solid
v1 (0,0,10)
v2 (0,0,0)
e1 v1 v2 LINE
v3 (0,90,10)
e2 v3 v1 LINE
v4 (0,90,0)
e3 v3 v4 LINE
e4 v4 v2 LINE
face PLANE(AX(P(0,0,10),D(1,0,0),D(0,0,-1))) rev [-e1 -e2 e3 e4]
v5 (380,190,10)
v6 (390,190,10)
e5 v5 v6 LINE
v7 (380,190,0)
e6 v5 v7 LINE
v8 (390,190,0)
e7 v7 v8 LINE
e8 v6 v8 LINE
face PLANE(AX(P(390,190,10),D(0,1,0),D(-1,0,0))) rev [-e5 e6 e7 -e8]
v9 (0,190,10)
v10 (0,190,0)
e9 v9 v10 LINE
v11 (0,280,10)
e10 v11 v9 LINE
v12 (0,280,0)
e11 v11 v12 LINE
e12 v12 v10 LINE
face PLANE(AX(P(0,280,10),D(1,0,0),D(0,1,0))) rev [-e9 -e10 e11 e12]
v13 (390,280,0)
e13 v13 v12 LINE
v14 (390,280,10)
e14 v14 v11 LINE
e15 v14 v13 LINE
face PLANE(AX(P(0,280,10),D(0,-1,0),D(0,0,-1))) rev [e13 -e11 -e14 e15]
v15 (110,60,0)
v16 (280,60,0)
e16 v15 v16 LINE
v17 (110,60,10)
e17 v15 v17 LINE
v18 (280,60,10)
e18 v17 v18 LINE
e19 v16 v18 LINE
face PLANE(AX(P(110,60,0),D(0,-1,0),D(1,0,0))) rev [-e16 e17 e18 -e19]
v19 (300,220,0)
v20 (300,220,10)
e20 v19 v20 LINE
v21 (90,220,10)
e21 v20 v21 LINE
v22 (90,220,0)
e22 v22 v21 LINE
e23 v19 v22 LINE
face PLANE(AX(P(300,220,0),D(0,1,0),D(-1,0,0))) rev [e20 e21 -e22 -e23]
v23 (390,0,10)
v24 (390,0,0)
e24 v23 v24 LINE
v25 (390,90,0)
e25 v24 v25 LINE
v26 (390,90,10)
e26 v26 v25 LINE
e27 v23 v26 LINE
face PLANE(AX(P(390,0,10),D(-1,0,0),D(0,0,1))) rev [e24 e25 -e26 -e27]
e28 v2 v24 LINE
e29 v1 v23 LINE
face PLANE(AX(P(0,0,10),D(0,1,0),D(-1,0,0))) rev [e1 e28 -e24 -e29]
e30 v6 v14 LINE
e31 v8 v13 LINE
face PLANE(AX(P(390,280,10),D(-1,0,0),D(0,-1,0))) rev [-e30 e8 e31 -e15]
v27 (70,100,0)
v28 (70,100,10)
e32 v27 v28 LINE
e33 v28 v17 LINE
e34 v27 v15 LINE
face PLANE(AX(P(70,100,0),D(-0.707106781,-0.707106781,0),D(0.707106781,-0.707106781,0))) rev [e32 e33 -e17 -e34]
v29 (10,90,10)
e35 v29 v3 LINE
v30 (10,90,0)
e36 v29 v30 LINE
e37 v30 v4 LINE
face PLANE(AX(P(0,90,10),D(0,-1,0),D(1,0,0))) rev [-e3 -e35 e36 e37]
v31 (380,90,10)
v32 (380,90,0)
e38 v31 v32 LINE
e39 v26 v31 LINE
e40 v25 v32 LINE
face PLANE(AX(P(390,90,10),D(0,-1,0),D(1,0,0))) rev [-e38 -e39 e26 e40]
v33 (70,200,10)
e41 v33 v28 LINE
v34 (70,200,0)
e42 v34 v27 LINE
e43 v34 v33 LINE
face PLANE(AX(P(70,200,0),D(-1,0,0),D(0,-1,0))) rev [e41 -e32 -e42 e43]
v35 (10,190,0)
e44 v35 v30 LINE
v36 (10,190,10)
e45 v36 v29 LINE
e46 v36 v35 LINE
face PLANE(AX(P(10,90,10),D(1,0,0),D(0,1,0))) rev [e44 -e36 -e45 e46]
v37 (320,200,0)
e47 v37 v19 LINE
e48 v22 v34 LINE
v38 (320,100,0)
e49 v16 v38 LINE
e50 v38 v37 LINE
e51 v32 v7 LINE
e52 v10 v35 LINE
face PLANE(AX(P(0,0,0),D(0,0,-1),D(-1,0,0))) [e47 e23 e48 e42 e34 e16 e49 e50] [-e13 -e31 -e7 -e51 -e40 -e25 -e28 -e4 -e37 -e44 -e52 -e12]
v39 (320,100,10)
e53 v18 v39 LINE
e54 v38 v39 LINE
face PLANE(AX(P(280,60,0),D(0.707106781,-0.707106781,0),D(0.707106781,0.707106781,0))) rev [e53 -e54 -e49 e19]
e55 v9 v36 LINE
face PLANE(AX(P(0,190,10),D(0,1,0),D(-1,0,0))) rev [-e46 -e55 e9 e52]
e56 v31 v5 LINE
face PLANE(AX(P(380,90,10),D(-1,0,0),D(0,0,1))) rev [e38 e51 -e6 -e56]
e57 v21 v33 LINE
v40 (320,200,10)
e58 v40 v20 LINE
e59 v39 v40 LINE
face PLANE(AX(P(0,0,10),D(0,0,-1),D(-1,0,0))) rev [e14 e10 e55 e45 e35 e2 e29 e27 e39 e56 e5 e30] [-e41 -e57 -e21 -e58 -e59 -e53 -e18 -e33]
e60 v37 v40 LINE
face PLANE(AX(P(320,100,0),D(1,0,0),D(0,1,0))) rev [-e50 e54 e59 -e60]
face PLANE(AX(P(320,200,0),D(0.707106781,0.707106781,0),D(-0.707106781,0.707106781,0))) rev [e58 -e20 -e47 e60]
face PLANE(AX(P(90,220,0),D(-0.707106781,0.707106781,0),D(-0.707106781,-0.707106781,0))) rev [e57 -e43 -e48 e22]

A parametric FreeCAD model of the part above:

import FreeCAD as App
import Part
import Sketcher

doc = App.newDocument("Part")
body = doc.addObject("PartDesign::Body", "Body")

sketch1 = body.newObject("Sketcher::SketchObject", "Sketch")
sketch1.AttachmentSupport = (doc.getObject("XY_Plane"), [""])
sketch1.MapMode = "FlatFace"
sketch1.addGeometry([
    Part.LineSegment(App.Vector(0, 0, 0), App.Vector(390, 0, 0)),
    Part.LineSegment(App.Vector(390, 0, 0), App.Vector(390, 90, 0)),
    Part.LineSegment(App.Vector(390, 90, 0), App.Vector(380, 90, 0)),
    Part.LineSegment(App.Vector(380, 90, 0), App.Vector(380, 190, 0)),
    Part.LineSegment(App.Vector(380, 190, 0), App.Vector(390, 190, 0)),
    Part.LineSegment(App.Vector(390, 190, 0), App.Vector(390, 280, 0)),
    Part.LineSegment(App.Vector(390, 280, 0), App.Vector(0, 280, 0)),
    Part.LineSegment(App.Vector(0, 280, 0), App.Vector(0, 190, 0)),
    Part.LineSegment(App.Vector(0, 190, 0), App.Vector(10, 190, 0)),
    Part.LineSegment(App.Vector(10, 190, 0), App.Vector(10, 90, 0)),
    Part.LineSegment(App.Vector(10, 90, 0), App.Vector(0, 90, 0)),
    Part.LineSegment(App.Vector(0, 90, 0), App.Vector(0, 0, 0)),
], False)
sketch1.addConstraint([
    Sketcher.Constraint("Coincident", 0, 2, 1, 1),
    Sketcher.Constraint("Coincident", 1, 2, 2, 1),
    Sketcher.Constraint("Coincident", 2, 2, 3, 1),
    Sketcher.Constraint("Coincident", 3, 2, 4, 1),
    Sketcher.Constraint("Coincident", 4, 2, 5, 1),
    Sketcher.Constraint("Coincident", 5, 2, 6, 1),
    Sketcher.Constraint("Coincident", 6, 2, 7, 1),
    Sketcher.Constraint("Coincident", 7, 2, 8, 1),
    Sketcher.Constraint("Coincident", 8, 2, 9, 1),
    Sketcher.Constraint("Coincident", 9, 2, 10, 1),
    Sketcher.Constraint("Coincident", 10, 2, 11, 1),
    Sketcher.Constraint("Coincident", 11, 2, 0, 1),
    Sketcher.Constraint("Horizontal", 0),
    Sketcher.Constraint("Vertical", 1),
    Sketcher.Constraint("Horizontal", 2),
    Sketcher.Constraint("Vertical", 3),
    Sketcher.Constraint("Horizontal", 4),
    Sketcher.Constraint("Vertical", 5),
    Sketcher.Constraint("Horizontal", 6),
    Sketcher.Constraint("Vertical", 7),
    Sketcher.Constraint("Horizontal", 8),
    Sketcher.Constraint("Vertical", 9),
    Sketcher.Constraint("Horizontal", 10),
    Sketcher.Constraint("Vertical", 11),
    Sketcher.Constraint("Coincident", 11, 2, -1, 1),
    Sketcher.Constraint("PointOnObject", 6, 2, -2),
    Sketcher.Constraint("Horizontal", 4, 2, 7, 2),
    Sketcher.Constraint("Horizontal", 2, 2, 9, 2),
    Sketcher.Constraint("Vertical", 1, 2, 4, 2),
    Sketcher.Constraint("Equal", 4, 8),
    Sketcher.Constraint("Equal", 1, 5),
    Sketcher.Constraint("DistanceX", 0, 1, 0, 2, 390.0),
    Sketcher.Constraint("DistanceX", 2, 2, 2, 1, 10.0),
    Sketcher.Constraint("DistanceY", 1, 1, 1, 2, 90.0),
    Sketcher.Constraint("DistanceY", 3, 1, 3, 2, 100.0),
])
pad1 = body.newObject("PartDesign::Pad", "Pad")
pad1.Profile = sketch1
pad1.Length = 10

sketch2 = body.newObject("Sketcher::SketchObject", "Sketch001")
sketch2.AttachmentSupport = (doc.getObject("XY_Plane"), [""])
sketch2.MapMode = "FlatFace"
sketch2.AttachmentOffset = App.Placement(App.Vector(0, 0, 10), App.Rotation())
sketch2.addGeometry([
    Part.LineSegment(App.Vector(70, 100, 0), App.Vector(110, 60, 0)),
    Part.LineSegment(App.Vector(110, 60, 0), App.Vector(280, 60, 0)),
    Part.LineSegment(App.Vector(280, 60, 0), App.Vector(320, 100, 0)),
    Part.LineSegment(App.Vector(320, 100, 0), App.Vector(320, 200, 0)),
    Part.LineSegment(App.Vector(320, 200, 0), App.Vector(300, 220, 0)),
    Part.LineSegment(App.Vector(300, 220, 0), App.Vector(90, 220, 0)),
    Part.LineSegment(App.Vector(90, 220, 0), App.Vector(70, 200, 0)),
    Part.LineSegment(App.Vector(70, 200, 0), App.Vector(70, 100, 0)),
], False)
sketch2.addConstraint([
    Sketcher.Constraint("Coincident", 0, 2, 1, 1),
    Sketcher.Constraint("Coincident", 1, 2, 2, 1),
    Sketcher.Constraint("Coincident", 2, 2, 3, 1),
    Sketcher.Constraint("Coincident", 3, 2, 4, 1),
    Sketcher.Constraint("Coincident", 4, 2, 5, 1),
    Sketcher.Constraint("Coincident", 5, 2, 6, 1),
    Sketcher.Constraint("Coincident", 6, 2, 7, 1),
    Sketcher.Constraint("Coincident", 7, 2, 0, 1),
    Sketcher.Constraint("Horizontal", 1),
    Sketcher.Constraint("Vertical", 3),
    Sketcher.Constraint("Horizontal", 5),
    Sketcher.Constraint("Vertical", 7),
    Sketcher.Constraint("Perpendicular", 0, 2),
    Sketcher.Constraint("Perpendicular", 2, 4),
    Sketcher.Constraint("Perpendicular", 4, 6),
    Sketcher.Constraint("Horizontal", 3, 2, 6, 2),
    Sketcher.Constraint("Horizontal", 2, 2, 7, 2),
    Sketcher.Constraint("Equal", 0, 2),
    Sketcher.Constraint("DistanceX", 1, 1, 1, 2, 170.0),
    Sketcher.Constraint("DistanceX", 5, 2, 5, 1, 210.0),
    Sketcher.Constraint("DistanceY", 3, 1, 3, 2, 100.0),
    Sketcher.Constraint("DistanceX", -1, 1, 0, 2, 110.0),
    Sketcher.Constraint("DistanceY", -1, 1, 0, 2, 60.0),
    Sketcher.Constraint("DistanceX", -1, 1, 2, 2, 320.0),
])
pocket1 = body.newObject("PartDesign::Pocket", "Pocket")
pocket1.Profile = sketch2
pocket1.Length = 10

doc.recompute()
